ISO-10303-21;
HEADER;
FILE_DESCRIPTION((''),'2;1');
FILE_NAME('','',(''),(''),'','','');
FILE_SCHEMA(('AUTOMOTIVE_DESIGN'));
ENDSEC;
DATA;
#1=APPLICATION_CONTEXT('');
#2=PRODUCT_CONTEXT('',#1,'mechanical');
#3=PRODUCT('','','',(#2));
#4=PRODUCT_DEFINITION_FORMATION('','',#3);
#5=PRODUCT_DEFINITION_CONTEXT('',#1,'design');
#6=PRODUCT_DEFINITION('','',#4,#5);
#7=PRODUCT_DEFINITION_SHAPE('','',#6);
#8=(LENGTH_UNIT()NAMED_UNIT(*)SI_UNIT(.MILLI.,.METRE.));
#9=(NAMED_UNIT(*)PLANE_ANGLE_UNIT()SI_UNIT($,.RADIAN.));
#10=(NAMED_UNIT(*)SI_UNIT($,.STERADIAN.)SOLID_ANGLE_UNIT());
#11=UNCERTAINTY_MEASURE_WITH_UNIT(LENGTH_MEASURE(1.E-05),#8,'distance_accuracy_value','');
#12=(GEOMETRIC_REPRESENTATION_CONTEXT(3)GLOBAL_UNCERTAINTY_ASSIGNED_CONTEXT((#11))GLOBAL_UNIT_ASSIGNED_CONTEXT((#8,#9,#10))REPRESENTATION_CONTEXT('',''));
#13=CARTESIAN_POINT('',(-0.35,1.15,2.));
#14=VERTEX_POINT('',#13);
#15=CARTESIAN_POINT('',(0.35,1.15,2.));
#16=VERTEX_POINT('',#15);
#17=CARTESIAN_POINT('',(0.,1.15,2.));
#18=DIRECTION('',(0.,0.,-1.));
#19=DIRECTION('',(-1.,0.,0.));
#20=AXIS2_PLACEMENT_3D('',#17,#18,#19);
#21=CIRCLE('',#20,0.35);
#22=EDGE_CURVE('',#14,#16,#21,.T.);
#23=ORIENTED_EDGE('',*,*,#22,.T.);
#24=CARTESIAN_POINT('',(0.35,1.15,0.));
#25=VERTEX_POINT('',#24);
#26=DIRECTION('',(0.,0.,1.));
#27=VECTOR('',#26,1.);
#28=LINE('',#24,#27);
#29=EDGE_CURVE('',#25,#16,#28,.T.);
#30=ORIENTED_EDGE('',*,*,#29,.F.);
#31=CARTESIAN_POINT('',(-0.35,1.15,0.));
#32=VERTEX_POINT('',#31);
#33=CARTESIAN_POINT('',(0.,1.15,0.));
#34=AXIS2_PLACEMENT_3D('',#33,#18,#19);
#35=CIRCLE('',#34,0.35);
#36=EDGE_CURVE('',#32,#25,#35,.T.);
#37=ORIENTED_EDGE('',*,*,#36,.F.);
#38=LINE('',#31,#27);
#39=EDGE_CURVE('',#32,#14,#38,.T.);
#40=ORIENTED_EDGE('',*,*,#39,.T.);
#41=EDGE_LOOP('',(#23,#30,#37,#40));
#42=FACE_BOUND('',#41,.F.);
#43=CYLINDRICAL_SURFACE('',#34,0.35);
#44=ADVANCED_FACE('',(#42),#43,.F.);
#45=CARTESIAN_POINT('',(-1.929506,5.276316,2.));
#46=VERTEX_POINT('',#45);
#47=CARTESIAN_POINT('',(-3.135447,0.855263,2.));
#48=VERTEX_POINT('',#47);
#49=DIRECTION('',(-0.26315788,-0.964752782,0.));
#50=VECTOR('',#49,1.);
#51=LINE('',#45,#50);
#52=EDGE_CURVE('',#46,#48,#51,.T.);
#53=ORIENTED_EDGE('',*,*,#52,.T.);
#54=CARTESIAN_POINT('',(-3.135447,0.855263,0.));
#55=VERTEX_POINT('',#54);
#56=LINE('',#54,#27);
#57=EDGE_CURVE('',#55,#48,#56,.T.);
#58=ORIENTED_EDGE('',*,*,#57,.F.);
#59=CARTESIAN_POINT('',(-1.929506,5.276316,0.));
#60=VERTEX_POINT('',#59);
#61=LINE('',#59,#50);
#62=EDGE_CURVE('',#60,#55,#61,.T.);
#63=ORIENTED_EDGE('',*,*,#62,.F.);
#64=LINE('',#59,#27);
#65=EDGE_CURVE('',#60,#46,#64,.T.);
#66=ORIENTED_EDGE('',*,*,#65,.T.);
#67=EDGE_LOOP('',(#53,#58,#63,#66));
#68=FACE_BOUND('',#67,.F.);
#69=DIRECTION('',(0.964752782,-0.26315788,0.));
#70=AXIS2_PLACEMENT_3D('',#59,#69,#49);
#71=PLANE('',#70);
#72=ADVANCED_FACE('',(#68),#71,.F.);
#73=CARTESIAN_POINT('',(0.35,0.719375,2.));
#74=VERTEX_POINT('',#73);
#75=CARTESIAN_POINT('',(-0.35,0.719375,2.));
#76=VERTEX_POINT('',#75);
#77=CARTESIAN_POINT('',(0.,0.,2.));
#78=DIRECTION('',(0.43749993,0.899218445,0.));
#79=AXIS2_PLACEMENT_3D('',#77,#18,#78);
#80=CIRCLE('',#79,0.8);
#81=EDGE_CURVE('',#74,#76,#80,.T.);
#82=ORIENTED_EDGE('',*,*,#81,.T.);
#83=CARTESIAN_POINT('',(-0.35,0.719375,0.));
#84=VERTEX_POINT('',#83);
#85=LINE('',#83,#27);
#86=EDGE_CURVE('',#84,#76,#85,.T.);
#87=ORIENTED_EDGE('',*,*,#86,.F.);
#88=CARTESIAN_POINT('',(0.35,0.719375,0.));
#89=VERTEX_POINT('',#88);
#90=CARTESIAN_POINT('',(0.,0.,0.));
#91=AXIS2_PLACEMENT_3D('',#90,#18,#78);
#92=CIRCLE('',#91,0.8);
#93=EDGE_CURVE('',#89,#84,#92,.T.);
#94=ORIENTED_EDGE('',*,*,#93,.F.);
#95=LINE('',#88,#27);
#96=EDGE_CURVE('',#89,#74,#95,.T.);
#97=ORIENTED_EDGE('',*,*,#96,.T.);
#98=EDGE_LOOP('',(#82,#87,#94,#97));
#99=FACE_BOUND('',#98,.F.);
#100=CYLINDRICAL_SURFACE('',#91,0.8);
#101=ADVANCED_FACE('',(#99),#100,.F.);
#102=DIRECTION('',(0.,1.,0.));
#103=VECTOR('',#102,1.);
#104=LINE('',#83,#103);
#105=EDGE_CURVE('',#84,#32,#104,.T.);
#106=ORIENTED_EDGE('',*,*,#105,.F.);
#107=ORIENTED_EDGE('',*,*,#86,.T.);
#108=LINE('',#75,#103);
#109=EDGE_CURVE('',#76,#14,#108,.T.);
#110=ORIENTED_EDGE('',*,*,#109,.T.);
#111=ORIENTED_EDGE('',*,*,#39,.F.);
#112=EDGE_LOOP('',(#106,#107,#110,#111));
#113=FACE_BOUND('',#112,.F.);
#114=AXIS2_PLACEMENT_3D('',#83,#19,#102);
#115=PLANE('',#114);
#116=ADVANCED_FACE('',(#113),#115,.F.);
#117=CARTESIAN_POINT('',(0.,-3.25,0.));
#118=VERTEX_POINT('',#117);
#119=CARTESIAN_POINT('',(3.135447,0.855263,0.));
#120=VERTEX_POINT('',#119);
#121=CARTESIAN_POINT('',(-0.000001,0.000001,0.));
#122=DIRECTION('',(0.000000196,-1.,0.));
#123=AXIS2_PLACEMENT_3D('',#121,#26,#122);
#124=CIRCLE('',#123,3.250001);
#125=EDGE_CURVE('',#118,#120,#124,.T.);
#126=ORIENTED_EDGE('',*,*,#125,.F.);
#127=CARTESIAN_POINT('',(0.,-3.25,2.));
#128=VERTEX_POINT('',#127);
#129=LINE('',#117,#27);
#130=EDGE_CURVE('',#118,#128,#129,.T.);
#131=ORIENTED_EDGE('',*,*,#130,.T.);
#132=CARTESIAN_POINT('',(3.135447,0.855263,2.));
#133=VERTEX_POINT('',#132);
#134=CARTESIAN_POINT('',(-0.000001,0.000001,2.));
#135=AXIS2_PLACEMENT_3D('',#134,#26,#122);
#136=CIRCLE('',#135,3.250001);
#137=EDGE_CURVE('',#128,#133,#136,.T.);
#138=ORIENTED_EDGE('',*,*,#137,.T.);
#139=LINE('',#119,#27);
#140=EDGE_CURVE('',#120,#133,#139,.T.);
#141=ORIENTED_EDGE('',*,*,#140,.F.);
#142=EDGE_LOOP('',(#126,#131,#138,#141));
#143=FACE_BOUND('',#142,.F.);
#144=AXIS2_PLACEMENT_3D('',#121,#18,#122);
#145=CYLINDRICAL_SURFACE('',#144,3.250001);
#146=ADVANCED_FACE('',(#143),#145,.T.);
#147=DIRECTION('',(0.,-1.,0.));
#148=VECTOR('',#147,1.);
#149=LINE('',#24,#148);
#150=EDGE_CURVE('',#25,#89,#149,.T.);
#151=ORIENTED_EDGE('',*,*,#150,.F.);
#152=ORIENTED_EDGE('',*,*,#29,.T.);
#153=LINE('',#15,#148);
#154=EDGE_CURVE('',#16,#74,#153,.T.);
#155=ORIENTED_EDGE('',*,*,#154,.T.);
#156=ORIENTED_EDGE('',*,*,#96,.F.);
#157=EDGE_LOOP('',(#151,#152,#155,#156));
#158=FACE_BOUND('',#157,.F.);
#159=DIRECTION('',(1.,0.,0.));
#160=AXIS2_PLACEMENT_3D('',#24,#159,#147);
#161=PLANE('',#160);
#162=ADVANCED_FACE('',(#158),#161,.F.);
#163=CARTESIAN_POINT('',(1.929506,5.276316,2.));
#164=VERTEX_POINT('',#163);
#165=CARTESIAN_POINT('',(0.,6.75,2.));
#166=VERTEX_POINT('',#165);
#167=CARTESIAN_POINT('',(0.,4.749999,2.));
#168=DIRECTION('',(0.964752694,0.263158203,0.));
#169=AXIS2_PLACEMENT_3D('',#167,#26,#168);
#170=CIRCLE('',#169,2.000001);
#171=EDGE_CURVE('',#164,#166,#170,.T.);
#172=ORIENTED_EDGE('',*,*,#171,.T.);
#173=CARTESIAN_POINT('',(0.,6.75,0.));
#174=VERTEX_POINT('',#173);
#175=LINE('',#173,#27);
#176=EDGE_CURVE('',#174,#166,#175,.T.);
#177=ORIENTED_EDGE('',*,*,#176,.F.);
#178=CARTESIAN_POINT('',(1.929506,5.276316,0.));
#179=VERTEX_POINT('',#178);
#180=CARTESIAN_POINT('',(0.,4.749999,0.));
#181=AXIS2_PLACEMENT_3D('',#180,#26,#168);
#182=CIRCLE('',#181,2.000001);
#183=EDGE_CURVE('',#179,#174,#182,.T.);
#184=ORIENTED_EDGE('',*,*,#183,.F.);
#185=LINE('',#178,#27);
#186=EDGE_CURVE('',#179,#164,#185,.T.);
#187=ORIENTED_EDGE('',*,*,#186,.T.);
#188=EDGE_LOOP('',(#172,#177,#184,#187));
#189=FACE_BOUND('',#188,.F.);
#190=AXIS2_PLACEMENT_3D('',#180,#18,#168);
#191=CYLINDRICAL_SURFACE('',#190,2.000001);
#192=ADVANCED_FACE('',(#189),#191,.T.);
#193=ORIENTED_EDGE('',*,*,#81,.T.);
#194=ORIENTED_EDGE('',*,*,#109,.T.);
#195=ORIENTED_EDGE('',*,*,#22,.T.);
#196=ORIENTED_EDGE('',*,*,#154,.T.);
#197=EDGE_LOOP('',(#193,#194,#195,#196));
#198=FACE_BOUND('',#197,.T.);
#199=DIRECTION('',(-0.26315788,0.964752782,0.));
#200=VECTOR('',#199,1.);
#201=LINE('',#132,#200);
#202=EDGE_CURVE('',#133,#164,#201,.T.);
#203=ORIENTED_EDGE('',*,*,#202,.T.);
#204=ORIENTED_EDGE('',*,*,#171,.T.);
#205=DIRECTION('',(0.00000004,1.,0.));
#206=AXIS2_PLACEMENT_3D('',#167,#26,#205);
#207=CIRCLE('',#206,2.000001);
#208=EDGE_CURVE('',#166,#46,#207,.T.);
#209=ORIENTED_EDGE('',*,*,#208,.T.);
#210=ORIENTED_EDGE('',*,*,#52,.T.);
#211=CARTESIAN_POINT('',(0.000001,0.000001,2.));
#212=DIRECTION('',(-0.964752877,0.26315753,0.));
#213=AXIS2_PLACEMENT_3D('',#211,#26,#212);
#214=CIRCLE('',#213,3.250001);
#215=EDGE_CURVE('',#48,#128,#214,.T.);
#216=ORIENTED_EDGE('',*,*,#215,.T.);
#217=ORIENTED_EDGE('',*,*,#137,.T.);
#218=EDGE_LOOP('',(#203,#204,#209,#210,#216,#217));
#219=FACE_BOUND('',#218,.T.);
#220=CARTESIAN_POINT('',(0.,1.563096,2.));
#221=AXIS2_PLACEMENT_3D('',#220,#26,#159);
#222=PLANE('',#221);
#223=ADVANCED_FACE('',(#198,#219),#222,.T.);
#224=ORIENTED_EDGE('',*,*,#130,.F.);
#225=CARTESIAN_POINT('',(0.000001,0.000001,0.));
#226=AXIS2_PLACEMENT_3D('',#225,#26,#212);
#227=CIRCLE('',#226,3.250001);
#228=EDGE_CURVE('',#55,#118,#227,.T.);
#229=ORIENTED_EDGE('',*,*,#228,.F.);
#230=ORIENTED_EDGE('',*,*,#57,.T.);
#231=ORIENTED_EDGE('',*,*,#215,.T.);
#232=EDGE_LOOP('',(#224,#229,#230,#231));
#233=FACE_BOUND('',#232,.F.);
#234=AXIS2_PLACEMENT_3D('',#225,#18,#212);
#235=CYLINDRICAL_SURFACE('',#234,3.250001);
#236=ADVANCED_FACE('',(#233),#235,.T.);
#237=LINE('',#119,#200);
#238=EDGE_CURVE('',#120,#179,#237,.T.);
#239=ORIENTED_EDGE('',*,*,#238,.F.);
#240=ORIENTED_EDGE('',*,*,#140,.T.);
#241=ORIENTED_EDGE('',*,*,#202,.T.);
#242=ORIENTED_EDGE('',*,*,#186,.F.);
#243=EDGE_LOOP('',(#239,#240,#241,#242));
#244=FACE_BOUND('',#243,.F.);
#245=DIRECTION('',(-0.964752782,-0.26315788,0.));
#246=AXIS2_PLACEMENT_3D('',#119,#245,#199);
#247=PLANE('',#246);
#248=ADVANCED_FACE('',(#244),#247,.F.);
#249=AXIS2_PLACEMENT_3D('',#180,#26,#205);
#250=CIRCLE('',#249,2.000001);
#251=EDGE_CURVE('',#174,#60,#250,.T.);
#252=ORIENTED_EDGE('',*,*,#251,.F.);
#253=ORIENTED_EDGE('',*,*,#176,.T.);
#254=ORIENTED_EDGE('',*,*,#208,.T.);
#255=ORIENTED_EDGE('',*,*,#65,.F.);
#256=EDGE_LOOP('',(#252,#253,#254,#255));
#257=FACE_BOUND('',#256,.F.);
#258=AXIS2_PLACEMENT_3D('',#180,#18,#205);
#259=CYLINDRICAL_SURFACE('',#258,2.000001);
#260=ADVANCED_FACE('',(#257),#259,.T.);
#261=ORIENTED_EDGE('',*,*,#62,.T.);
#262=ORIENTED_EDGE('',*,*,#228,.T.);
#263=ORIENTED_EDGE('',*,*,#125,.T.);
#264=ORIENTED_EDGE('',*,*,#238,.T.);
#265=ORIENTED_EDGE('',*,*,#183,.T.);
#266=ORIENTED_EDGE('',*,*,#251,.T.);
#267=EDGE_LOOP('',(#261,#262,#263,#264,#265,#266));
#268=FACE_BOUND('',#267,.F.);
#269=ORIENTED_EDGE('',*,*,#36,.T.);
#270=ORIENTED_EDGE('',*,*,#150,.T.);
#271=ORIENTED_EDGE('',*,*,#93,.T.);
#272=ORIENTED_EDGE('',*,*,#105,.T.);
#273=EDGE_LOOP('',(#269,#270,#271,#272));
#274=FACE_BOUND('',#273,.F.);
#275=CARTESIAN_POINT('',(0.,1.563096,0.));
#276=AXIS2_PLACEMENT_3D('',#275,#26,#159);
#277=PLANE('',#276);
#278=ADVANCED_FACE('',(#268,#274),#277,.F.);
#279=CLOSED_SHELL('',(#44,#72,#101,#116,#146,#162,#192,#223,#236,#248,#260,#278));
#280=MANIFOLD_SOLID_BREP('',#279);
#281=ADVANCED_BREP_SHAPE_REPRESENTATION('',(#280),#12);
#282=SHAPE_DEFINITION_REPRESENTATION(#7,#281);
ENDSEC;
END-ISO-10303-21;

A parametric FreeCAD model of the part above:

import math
import FreeCAD as App
import Part
import Sketcher
from FreeCAD import Vector
Q = App.Units.Quantity

doc = App.newDocument("Part")
body = doc.addObject("PartDesign::Body", "Body")

# Sketch on XY plane
sketch1 = doc.addObject("Sketcher::SketchObject", "Sketch")
body.addObject(sketch1)
sketch1.AttachmentSupport = (doc.XY_Plane, [""])
sketch1.MapMode = "FlatFace"
sketch1.addGeometry(Part.ArcOfCircle(Part.Circle(Vector(0, 4.75, 0), Vector(0, 0, 1), 2), math.radians(15), math.radians(90)), False)
sketch1.addGeometry(Part.ArcOfCircle(Part.Circle(Vector(0, 4.75, 0), Vector(0, 0, 1), 2), math.radians(90), math.radians(165)), False)
sketch1.addGeometry(Part.LineSegment(Vector(-1.93, 5.28, 0), Vector(-3.14, 0.86, 0)), False)
sketch1.addGeometry(Part.ArcOfCircle(Part.Circle(Vector(0, 0, 0), Vector(0, 0, 1), 3.25), math.radians(165), math.radians(270)), False)
sketch1.addGeometry(Part.ArcOfCircle(Part.Circle(Vector(0, 0, 0), Vector(0, 0, 1), 3.25), math.radians(-90), math.radians(15)), False)
sketch1.addGeometry(Part.LineSegment(Vector(3.14, 0.86, 0), Vector(1.93, 5.28, 0)), False)
sketch1.addGeometry(Part.LineSegment(Vector(0.35, 1.15, 0), Vector(0.35, 0.72, 0)), False)
sketch1.addGeometry(Part.ArcOfCircle(Part.Circle(Vector(0, 0, 0), Vector(0, 0, 1), 0.8), math.radians(116), math.radians(424)), False)
sketch1.addGeometry(Part.LineSegment(Vector(-0.35, 0.72, 0), Vector(-0.35, 1.15, 0)), False)
sketch1.addGeometry(Part.ArcOfCircle(Part.Circle(Vector(0, 1.15, 0), Vector(0, 0, 1), 0.35), math.radians(0), math.radians(180)), False)
sketch1.addConstraint(Sketcher.Constraint("Tangent", 0, 2, 1, 1))
sketch1.addConstraint(Sketcher.Constraint("Tangent", 1, 2, 2, 1))
sketch1.addConstraint(Sketcher.Constraint("Tangent", 2, 2, 3, 1))
sketch1.addConstraint(Sketcher.Constraint("Tangent", 3, 2, 4, 1))
sketch1.addConstraint(Sketcher.Constraint("Tangent", 4, 2, 5, 1))
sketch1.addConstraint(Sketcher.Constraint("Tangent", 5, 2, 0, 1))
sketch1.addConstraint(Sketcher.Constraint("Coincident", 6, 2, 7, 2))
sketch1.addConstraint(Sketcher.Constraint("Coincident", 7, 1, 8, 1))
sketch1.addConstraint(Sketcher.Constraint("Tangent", 8, 2, 9, 2))
sketch1.addConstraint(Sketcher.Constraint("Tangent", 9, 1, 6, 1))
sketch1.addConstraint(Sketcher.Constraint("Vertical", 6))
sketch1.addConstraint(Sketcher.Constraint("Vertical", 8))
sketch1.addConstraint(Sketcher.Constraint("Coincident", 3, 3, -1, 1))
sketch1.addConstraint(Sketcher.Constraint("Coincident", 7, 3, -1, 1))
sketch1.addConstraint(Sketcher.Constraint("Equal", 0, 1))
sketch1.addConstraint(Sketcher.Constraint("Equal", 3, 4))
sketch1.addConstraint(Sketcher.Constraint("PointOnObject", 0, 3, -2))
sketch1.addConstraint(Sketcher.Constraint("PointOnObject", 9, 3, -2))
sketch1.addConstraint(Sketcher.Constraint("PointOnObject", 0, 2, -2))
sketch1.addConstraint(Sketcher.Constraint("PointOnObject", 3, 2, -2))
sketch1.addConstraint(Sketcher.Constraint("Radius", 0, Q("2.000001 mm")))
sketch1.addConstraint(Sketcher.Constraint("Radius", 7, Q("0.8 mm")))
sketch1.addConstraint(Sketcher.Constraint("Radius", 3, Q("3.250001 mm")))
sketch1.addConstraint(Sketcher.Constraint("Radius", 9, Q("0.35 mm")))
sketch1.addConstraint(Sketcher.Constraint("DistanceY", 9, 3, 0, 3, Q("3.599999 mm")))
sketch1.addConstraint(Sketcher.Constraint("DistanceY", 3, 2, 9, 3, Q("4.4 mm")))
pad1 = doc.addObject("PartDesign::Pad", "Pad")
body.addObject(pad1)
pad1.Profile = sketch1
pad1.Length = 2

doc.recompute()
